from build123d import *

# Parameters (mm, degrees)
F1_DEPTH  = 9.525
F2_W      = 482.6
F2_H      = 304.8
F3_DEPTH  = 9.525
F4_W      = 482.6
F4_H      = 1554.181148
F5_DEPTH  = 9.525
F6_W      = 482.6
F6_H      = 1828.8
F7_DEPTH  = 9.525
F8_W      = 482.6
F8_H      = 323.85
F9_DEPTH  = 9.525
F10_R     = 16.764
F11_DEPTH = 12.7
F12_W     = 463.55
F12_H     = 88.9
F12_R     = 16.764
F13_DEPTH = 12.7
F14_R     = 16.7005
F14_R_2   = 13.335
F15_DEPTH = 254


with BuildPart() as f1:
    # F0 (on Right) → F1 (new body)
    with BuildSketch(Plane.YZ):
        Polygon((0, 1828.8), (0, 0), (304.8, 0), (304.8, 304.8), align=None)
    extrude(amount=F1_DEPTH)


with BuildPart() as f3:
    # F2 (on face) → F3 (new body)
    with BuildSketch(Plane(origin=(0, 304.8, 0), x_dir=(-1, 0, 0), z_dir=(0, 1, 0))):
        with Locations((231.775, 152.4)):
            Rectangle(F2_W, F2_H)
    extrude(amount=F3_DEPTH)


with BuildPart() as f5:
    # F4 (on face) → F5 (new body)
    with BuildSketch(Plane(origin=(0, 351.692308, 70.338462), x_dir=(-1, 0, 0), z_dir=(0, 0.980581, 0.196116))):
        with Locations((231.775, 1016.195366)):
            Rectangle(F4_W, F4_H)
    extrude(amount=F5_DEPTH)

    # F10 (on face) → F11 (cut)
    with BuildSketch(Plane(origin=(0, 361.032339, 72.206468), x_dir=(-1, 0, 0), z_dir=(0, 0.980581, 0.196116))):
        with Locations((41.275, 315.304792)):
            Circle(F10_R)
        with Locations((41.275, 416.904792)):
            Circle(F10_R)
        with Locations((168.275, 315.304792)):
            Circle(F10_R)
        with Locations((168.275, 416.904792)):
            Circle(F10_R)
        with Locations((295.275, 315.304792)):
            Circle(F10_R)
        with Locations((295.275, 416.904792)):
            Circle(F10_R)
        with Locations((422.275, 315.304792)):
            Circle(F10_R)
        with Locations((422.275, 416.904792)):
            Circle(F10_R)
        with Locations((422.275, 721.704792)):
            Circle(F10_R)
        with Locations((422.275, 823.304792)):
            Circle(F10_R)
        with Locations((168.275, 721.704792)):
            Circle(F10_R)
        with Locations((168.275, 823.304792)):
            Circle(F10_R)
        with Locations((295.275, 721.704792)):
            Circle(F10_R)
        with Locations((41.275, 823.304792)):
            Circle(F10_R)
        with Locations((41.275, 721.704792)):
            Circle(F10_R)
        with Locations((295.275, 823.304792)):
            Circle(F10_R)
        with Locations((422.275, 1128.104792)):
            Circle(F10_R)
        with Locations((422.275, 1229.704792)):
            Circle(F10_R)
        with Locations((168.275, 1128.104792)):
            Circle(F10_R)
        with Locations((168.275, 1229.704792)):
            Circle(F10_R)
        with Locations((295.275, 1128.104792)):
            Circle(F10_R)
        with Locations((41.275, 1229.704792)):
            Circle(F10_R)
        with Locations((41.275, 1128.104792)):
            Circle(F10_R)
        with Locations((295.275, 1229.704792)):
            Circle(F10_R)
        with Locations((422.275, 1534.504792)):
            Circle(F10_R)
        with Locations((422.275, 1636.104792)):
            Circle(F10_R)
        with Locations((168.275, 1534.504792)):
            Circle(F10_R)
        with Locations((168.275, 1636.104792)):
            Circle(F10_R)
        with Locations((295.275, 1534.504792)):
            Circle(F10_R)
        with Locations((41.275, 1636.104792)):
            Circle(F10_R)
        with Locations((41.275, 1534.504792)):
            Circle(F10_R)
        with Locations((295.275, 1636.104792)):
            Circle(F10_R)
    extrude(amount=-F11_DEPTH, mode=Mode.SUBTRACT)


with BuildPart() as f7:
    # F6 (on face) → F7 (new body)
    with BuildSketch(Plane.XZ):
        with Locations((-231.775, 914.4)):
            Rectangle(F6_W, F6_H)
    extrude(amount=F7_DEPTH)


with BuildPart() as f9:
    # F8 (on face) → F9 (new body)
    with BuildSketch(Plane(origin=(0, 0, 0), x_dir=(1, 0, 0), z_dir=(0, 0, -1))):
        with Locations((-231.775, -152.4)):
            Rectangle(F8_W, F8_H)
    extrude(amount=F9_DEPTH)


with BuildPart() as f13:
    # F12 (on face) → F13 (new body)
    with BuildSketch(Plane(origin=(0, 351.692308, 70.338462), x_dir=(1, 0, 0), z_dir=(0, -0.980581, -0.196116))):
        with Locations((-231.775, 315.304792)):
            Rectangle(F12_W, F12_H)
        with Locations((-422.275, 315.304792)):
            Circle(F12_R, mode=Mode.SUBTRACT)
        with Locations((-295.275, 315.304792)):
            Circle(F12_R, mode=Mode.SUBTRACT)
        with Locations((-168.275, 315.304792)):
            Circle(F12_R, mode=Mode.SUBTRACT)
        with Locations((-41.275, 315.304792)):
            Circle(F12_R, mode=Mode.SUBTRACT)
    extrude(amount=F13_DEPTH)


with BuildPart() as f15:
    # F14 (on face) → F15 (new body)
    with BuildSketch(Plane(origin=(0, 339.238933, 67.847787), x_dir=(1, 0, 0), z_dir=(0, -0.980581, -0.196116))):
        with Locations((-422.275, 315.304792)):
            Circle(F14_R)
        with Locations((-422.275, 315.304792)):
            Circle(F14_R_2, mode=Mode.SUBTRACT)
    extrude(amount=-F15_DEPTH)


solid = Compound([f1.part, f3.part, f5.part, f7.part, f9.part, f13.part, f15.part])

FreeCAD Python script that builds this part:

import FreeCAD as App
import Part
import Sketcher

V = App.Vector
Q = App.Units.Quantity

doc = App.newDocument("Part")
body = doc.addObject("PartDesign::Body", "Body")

# Sketch on YZ plane
sketch1 = doc.addObject("Sketcher::SketchObject", "Sketch")
body.addObject(sketch1)
sketch1.AttachmentSupport = (doc.YZ_Plane, [""])
sketch1.MapMode = "FlatFace"
sketch1.addGeometry([
    Part.LineSegment(V(0, 1829, 0), V(0, 0, 0)),
    Part.LineSegment(V(0, 0, 0), V(305, 0, 0)),
    Part.LineSegment(V(305, 0, 0), V(305, 305, 0)),
    Part.LineSegment(V(305, 305, 0), V(0, 1829, 0)),
], False)
sketch1.addConstraint([
    Sketcher.Constraint("Coincident", 0, 2, 1, 1),
    Sketcher.Constraint("Coincident", 1, 2, 2, 1),
    Sketcher.Constraint("Coincident", 2, 2, 3, 1),
    Sketcher.Constraint("Coincident", 3, 2, 0, 1),
    Sketcher.Constraint("Vertical", 0),
    Sketcher.Constraint("Horizontal", 1),
    Sketcher.Constraint("Vertical", 2),
    Sketcher.Constraint("Coincident", 0, 2, -1, 1),
    Sketcher.Constraint("Equal", 1, 2),
    Sketcher.Constraint("DistanceX", 1, 1, 1, 2, Q("12 in")),
    Sketcher.Constraint("DistanceY", 0, 2, 0, 1, Q("72 in")),
])
pad1 = doc.addObject("PartDesign::Pad", "Pad")
body.addObject(pad1)
pad1.Profile = sketch1
pad1.Length = Q("0.375 in")
body2 = doc.addObject("PartDesign::Body", "Body001")

# Sketch on XZ plane
sketch2 = doc.addObject("Sketcher::SketchObject", "Sketch001")
body2.addObject(sketch2)
sketch2.AttachmentSupport = (doc.getObject("XZ_Plane001"), [""])
sketch2.MapMode = "FlatFace"
sketch2.AttachmentOffset = App.Placement(V(0, 0, -12 * 25.4), App.Rotation())
sketch2.addGeometry([
    Part.LineSegment(V(10, 305, 0), V(10, 0, 0)),
    Part.LineSegment(V(10, 0, 0), V(-473, 0, 0)),
    Part.LineSegment(V(-473, 0, 0), V(-473, 305, 0)),
    Part.LineSegment(V(-473, 305, 0), V(10, 305, 0)),
], False)
sketch2.addConstraint([
    Sketcher.Constraint("Coincident", 0, 2, 1, 1),
    Sketcher.Constraint("Coincident", 1, 2, 2, 1),
    Sketcher.Constraint("Coincident", 2, 2, 3, 1),
    Sketcher.Constraint("Coincident", 3, 2, 0, 1),
    Sketcher.Constraint("Vertical", 0),
    Sketcher.Constraint("Horizontal", 1),
    Sketcher.Constraint("Vertical", 2),
    Sketcher.Constraint("Horizontal", 3),
    Sketcher.Constraint("PointOnObject", 0, 2, -1),
    Sketcher.Constraint("DistanceX", 1, 2, 1, 1, Q("19 in")),
    Sketcher.Constraint("DistanceY", 0, 2, 0, 1, Q("12 in")),
    Sketcher.Constraint("DistanceX", -1, 1, 0, 2, Q("0.375 in")),
])
pad2 = doc.addObject("PartDesign::Pad", "Pad001")
body2.addObject(pad2)
pad2.Profile = sketch2
pad2.Length = Q("0.375 in")
pad2.Reversed = True
body3 = doc.addObject("PartDesign::Body", "Body002")

# Sketch on an angled plane
sketch3 = doc.addObject("Sketcher::SketchObject", "Sketch002")
body3.addObject(sketch3)
sketch3.Placement = App.Placement(V(0, 351.692308, 70.338462), App.Rotation(V(-1, 0, 0), V(0, -0.196115943, 0.980580714), V(0, 0.980580714, 0.196115943), "ZXY"))
sketch3.addGeometry([
    Part.LineSegment(V(-10, 1793, 0), V(-10, 239, 0)),
    Part.LineSegment(V(-10, 239, 0), V(473, 239, 0)),
    Part.LineSegment(V(473, 239, 0), V(473, 1793, 0)),
    Part.LineSegment(V(473, 1793, 0), V(-10, 1793, 0)),
], False)
sketch3.addConstraint([
    Sketcher.Constraint("Coincident", 0, 2, 1, 1),
    Sketcher.Constraint("Coincident", 1, 2, 2, 1),
    Sketcher.Constraint("Coincident", 2, 2, 3, 1),
    Sketcher.Constraint("Coincident", 3, 2, 0, 1),
    Sketcher.Constraint("Vertical", 0),
    Sketcher.Constraint("Horizontal", 1),
    Sketcher.Constraint("Vertical", 2),
    Sketcher.Constraint("Horizontal", 3),
    Sketcher.Constraint("DistanceX", 1, 1, 1, 2, Q("19 in")),
    Sketcher.Constraint("DistanceX", 0, 2, -1, 1, Q("0.375 in")),
    Sketcher.Constraint("DistanceY", 0, 2, 0, 1, 1554.181148),
    Sketcher.Constraint("DistanceY", -1, 1, 0, 2, 239.104792),
])
pad3 = doc.addObject("PartDesign::Pad", "Pad002")
body3.addObject(pad3)
pad3.Profile = sketch3
pad3.Length = Q("0.375 in")

# Sketch on an angled plane
sketch4 = doc.addObject("Sketcher::SketchObject", "Sketch003")
body3.addObject(sketch4)
sketch4.Placement = App.Placement(V(0, 361.032339, 72.206468), App.Rotation(V(-1, 0, 0), V(0, -0.196115943, 0.980580714), V(0, 0.980580714, 0.196115943), "ZXY"))
sketch4.addGeometry([
    Part.Circle(V(41, 315, 0), V(0, 0, 1), 17),  # 0
    Part.Circle(V(41, 417, 0), V(0, 0, 1), 17),  # 1
    Part.Circle(V(168, 315, 0), V(0, 0, 1), 17),  # 2
    Part.Circle(V(168, 417, 0), V(0, 0, 1), 17),  # 3
    Part.Circle(V(295, 315, 0), V(0, 0, 1), 17),  # 4
    Part.Circle(V(295, 417, 0), V(0, 0, 1), 17),  # 5
    Part.Circle(V(422, 315, 0), V(0, 0, 1), 17),  # 6
    Part.Circle(V(422, 417, 0), V(0, 0, 1), 17),  # 7
    Part.Circle(V(422, 722, 0), V(0, 0, 1), 17),  # 8
    Part.Circle(V(422, 823, 0), V(0, 0, 1), 17),  # 9
    Part.Circle(V(168, 722, 0), V(0, 0, 1), 17),  # 10
    Part.Circle(V(168, 823, 0), V(0, 0, 1), 17),  # 11
    Part.Circle(V(295, 722, 0), V(0, 0, 1), 17),  # 12
    Part.Circle(V(41, 823, 0), V(0, 0, 1), 17),  # 13
    Part.Circle(V(41, 722, 0), V(0, 0, 1), 17),  # 14
    Part.Circle(V(295, 823, 0), V(0, 0, 1), 17),  # 15
    Part.Circle(V(422, 1128, 0), V(0, 0, 1), 17),  # 16
    Part.Circle(V(422, 1230, 0), V(0, 0, 1), 17),  # 17
    Part.Circle(V(168, 1128, 0), V(0, 0, 1), 17),  # 18
    Part.Circle(V(168, 1230, 0), V(0, 0, 1), 17),  # 19
    Part.Circle(V(295, 1128, 0), V(0, 0, 1), 17),  # 20
    Part.Circle(V(41, 1230, 0), V(0, 0, 1), 17),  # 21
    Part.Circle(V(41, 1128, 0), V(0, 0, 1), 17),  # 22
    Part.Circle(V(295, 1230, 0), V(0, 0, 1), 17),  # 23
    Part.Circle(V(422, 1535, 0), V(0, 0, 1), 17),  # 24
    Part.Circle(V(422, 1636, 0), V(0, 0, 1), 17),  # 25
    Part.Circle(V(168, 1535, 0), V(0, 0, 1), 17),  # 26
    Part.Circle(V(168, 1636, 0), V(0, 0, 1), 17),  # 27
    Part.Circle(V(295, 1535, 0), V(0, 0, 1), 17),  # 28
    Part.Circle(V(41, 1636, 0), V(0, 0, 1), 17),  # 29
    Part.Circle(V(41, 1535, 0), V(0, 0, 1), 17),  # 30
    Part.Circle(V(295, 1636, 0), V(0, 0, 1), 17),  # 31
], False)
sketch4.addConstraint([
    Sketcher.Constraint("Equal", 0, 1),
    Sketcher.Constraint("Equal", 1, 2),
    Sketcher.Constraint("Equal", 2, 3),
    Sketcher.Constraint("Equal", 3, 4),
    Sketcher.Constraint("Equal", 4, 5),
    Sketcher.Constraint("Equal", 5, 6),
    Sketcher.Constraint("Equal", 6, 7),
    Sketcher.Constraint("Equal", 7, 8),
    Sketcher.Constraint("Equal", 8, 9),
    Sketcher.Constraint("Equal", 9, 10),
    Sketcher.Constraint("Equal", 10, 11),
    Sketcher.Constraint("Equal", 11, 12),
    Sketcher.Constraint("Equal", 12, 13),
    Sketcher.Constraint("Equal", 13, 14),
    Sketcher.Constraint("Equal", 14, 15),
    Sketcher.Constraint("Equal", 15, 16),
    Sketcher.Constraint("Equal", 16, 17),
    Sketcher.Constraint("Equal", 17, 18),
    Sketcher.Constraint("Equal", 18, 19),
    Sketcher.Constraint("Equal", 19, 20),
    Sketcher.Constraint("Equal", 20, 21),
    Sketcher.Constraint("Equal", 21, 22),
    Sketcher.Constraint("Equal", 22, 23),
    Sketcher.Constraint("Equal", 23, 24),
    Sketcher.Constraint("Equal", 24, 25),
    Sketcher.Constraint("Equal", 25, 26),
    Sketcher.Constraint("Equal", 26, 27),
    Sketcher.Constraint("Equal", 27, 28),
    Sketcher.Constraint("Equal", 28, 29),
    Sketcher.Constraint("Equal", 29, 30),
    Sketcher.Constraint("Equal", 30, 31),
    Sketcher.Constraint("Horizontal", 0, 3, 2, 3),
    Sketcher.Constraint("Horizontal", 1, 3, 3, 3),
    Sketcher.Constraint("Horizontal", 2, 3, 4, 3),
    Sketcher.Constraint("Horizontal", 3, 3, 5, 3),
    Sketcher.Constraint("Horizontal", 4, 3, 6, 3),
    Sketcher.Constraint("Horizontal", 5, 3, 7, 3),
    Sketcher.Constraint("Horizontal", 8, 3, 10, 3),
    Sketcher.Constraint("Horizontal", 9, 3, 11, 3),
    Sketcher.Constraint("Horizontal", 10, 3, 12, 3),
    Sketcher.Constraint("Horizontal", 11, 3, 13, 3),
    Sketcher.Constraint("Horizontal", 12, 3, 14, 3),
    Sketcher.Constraint("Horizontal", 13, 3, 15, 3),
    Sketcher.Constraint("Horizontal", 16, 3, 18, 3),
    Sketcher.Constraint("Horizontal", 17, 3, 19, 3),
    Sketcher.Constraint("Horizontal", 18, 3, 20, 3),
    Sketcher.Constraint("Horizontal", 19, 3, 21, 3),
    Sketcher.Constraint("Horizontal", 20, 3, 22, 3),
    Sketcher.Constraint("Horizontal", 21, 3, 23, 3),
    Sketcher.Constraint("Horizontal", 24, 3, 26, 3),
    Sketcher.Constraint("Horizontal", 25, 3, 27, 3),
    Sketcher.Constraint("Horizontal", 26, 3, 28, 3),
    Sketcher.Constraint("Horizontal", 27, 3, 29, 3),
    Sketcher.Constraint("Horizontal", 28, 3, 30, 3),
    Sketcher.Constraint("Horizontal", 29, 3, 31, 3),
    Sketcher.Constraint("Vertical", 0, 3, 1, 3),
    Sketcher.Constraint("Vertical", 2, 3, 3, 3),
    Sketcher.Constraint("Vertical", 4, 3, 5, 3),
    Sketcher.Constraint("Vertical", 6, 3, 7, 3),
    Sketcher.Constraint("Vertical", 7, 3, 8, 3),
    Sketcher.Constraint("Vertical", 8, 3, 9, 3),
    Sketcher.Constraint("Vertical", 3, 3, 10, 3),
    Sketcher.Constraint("Vertical", 10, 3, 11, 3),
    Sketcher.Constraint("Vertical", 5, 3, 12, 3),
    Sketcher.Constraint("Vertical", 1, 3, 13, 3),
    Sketcher.Constraint("Vertical", 13, 3, 14, 3),
    Sketcher.Constraint("Vertical", 12, 3, 15, 3),
    Sketcher.Constraint("Vertical", 9, 3, 16, 3),
    Sketcher.Constraint("Vertical", 16, 3, 17, 3),
    Sketcher.Constraint("Vertical", 11, 3, 18, 3),
    Sketcher.Constraint("Vertical", 18, 3, 19, 3),
    Sketcher.Constraint("Vertical", 15, 3, 20, 3),
    Sketcher.Constraint("Vertical", 14, 3, 21, 3),
    Sketcher.Constraint("Vertical", 21, 3, 22, 3),
    Sketcher.Constraint("Vertical", 20, 3, 23, 3),
    Sketcher.Constraint("Vertical", 17, 3, 24, 3),
    Sketcher.Constraint("Vertical", 24, 3, 25, 3),
    Sketcher.Constraint("Vertical", 19, 3, 26, 3),
    Sketcher.Constraint("Vertical", 26, 3, 27, 3),
    Sketcher.Constraint("Vertical", 23, 3, 28, 3),
    Sketcher.Constraint("Vertical", 22, 3, 29, 3),
    Sketcher.Constraint("Vertical", 29, 3, 30, 3),
    Sketcher.Constraint("Vertical", 28, 3, 31, 3),
    Sketcher.Constraint("Diameter", 0, Q("1.32 in")),
    Sketcher.Constraint("DistanceY", 0, 3, 1, 3, Q("4 in")),
    Sketcher.Constraint("DistanceX", 0, 3, 2, 3, Q("5 in")),
    Sketcher.Constraint("DistanceX", 2, 3, 4, 3, Q("5 in")),
    Sketcher.Constraint("DistanceX", 4, 3, 6, 3, Q("5 in")),
    Sketcher.Constraint("DistanceY", 7, 3, 8, 3, Q("12 in")),
    Sketcher.Constraint("DistanceY", 8, 3, 9, 3, Q("4 in")),
    Sketcher.Constraint("DistanceY", 9, 3, 16, 3, Q("12 in")),
    Sketcher.Constraint("DistanceY", 16, 3, 17, 3, Q("4 in")),
    Sketcher.Constraint("DistanceY", 17, 3, 24, 3, Q("12 in")),
    Sketcher.Constraint("DistanceY", 24, 3, 25, 3, Q("4 in")),
    Sketcher.Constraint("DistanceX", -1, 1, 0, 3, Q("1.625 in")),
    Sketcher.Constraint("DistanceY", -1, 1, 0, 3, 315.304792),
])
pocket1 = doc.addObject("PartDesign::Pocket", "Pocket")
body3.addObject(pocket1)
pocket1.Profile = sketch4
pocket1.Length = Q("0.5 in")
body4 = doc.addObject("PartDesign::Body", "Body003")

# Sketch on XZ plane
sketch5 = doc.addObject("Sketcher::SketchObject", "Sketch004")
body4.addObject(sketch5)
sketch5.AttachmentSupport = (doc.getObject("XZ_Plane003"), [""])
sketch5.MapMode = "FlatFace"
sketch5.addGeometry([
    Part.LineSegment(V(-473, 1829, 0), V(-473, 0, 0)),
    Part.LineSegment(V(-473, 0, 0), V(10, 0, 0)),
    Part.LineSegment(V(10, 0, 0), V(10, 1829, 0)),
    Part.LineSegment(V(10, 1829, 0), V(-473, 1829, 0)),
], False)
sketch5.addConstraint([
    Sketcher.Constraint("Coincident", 0, 2, 1, 1),
    Sketcher.Constraint("Coincident", 1, 2, 2, 1),
    Sketcher.Constraint("Coincident", 2, 2, 3, 1),
    Sketcher.Constraint("Coincident", 3, 2, 0, 1),
    Sketcher.Constraint("Vertical", 0),
    Sketcher.Constraint("Horizontal", 1),
    Sketcher.Constraint("Vertical", 2),
    Sketcher.Constraint("Horizontal", 3),
    Sketcher.Constraint("PointOnObject", 0, 2, -1),
    Sketcher.Constraint("DistanceX", 1, 1, 1, 2, Q("19 in")),
    Sketcher.Constraint("DistanceY", 0, 2, 0, 1, Q("72 in")),
    Sketcher.Constraint("DistanceX", 0, 2, -1, 1, Q("18.625 in")),
])
pad4 = doc.addObject("PartDesign::Pad", "Pad003")
body4.addObject(pad4)
pad4.Profile = sketch5
pad4.Length = Q("0.375 in")
body5 = doc.addObject("PartDesign::Body", "Body004")

# Sketch on XY plane
sketch6 = doc.addObject("Sketcher::SketchObject", "Sketch005")
body5.addObject(sketch6)
sketch6.AttachmentSupport = (doc.getObject("XY_Plane004"), [""])
sketch6.MapMode = "FlatFace"
sketch6.addGeometry([
    Part.LineSegment(V(-473, -10, 0), V(-473, 314, 0)),
    Part.LineSegment(V(-473, 314, 0), V(10, 314, 0)),
    Part.LineSegment(V(10, 314, 0), V(10, -10, 0)),
    Part.LineSegment(V(10, -10, 0), V(-473, -10, 0)),
], False)
sketch6.addConstraint([
    Sketcher.Constraint("Coincident", 0, 2, 1, 1),
    Sketcher.Constraint("Coincident", 1, 2, 2, 1),
    Sketcher.Constraint("Coincident", 2, 2, 3, 1),
    Sketcher.Constraint("Coincident", 3, 2, 0, 1),
    Sketcher.Constraint("Vertical", 0),
    Sketcher.Constraint("Horizontal", 1),
    Sketcher.Constraint("Vertical", 2),
    Sketcher.Constraint("Horizontal", 3),
    Sketcher.Constraint("DistanceX", 1, 1, 1, 2, Q("19 in")),
    Sketcher.Constraint("DistanceY", 0, 1, 0, 2, Q("12.75 in")),
    Sketcher.Constraint("DistanceX", 0, 2, -1, 1, Q("18.625 in")),
    Sketcher.Constraint("DistanceY", -1, 1, 0, 2, Q("12.375 in")),
])
pad5 = doc.addObject("PartDesign::Pad", "Pad004")
body5.addObject(pad5)
pad5.Profile = sketch6
pad5.Length = Q("0.375 in")
pad5.Reversed = True
body6 = doc.addObject("PartDesign::Body", "Body005")

# Sketch on an angled plane
sketch7 = doc.addObject("Sketcher::SketchObject", "Sketch006")
body6.addObject(sketch7)
sketch7.Placement = App.Placement(V(0, 351.692308, 70.338462), App.Rotation(V(1, 0, 0), V(0, -0.196115943, 0.980580714), V(0, -0.980580714, -0.196115943), "ZXY"))
sketch7.addGeometry([
    Part.LineSegment(V(-464, 360, 0), V(-464, 271, 0)),  # 0
    Part.LineSegment(V(-464, 271, 0), V(0, 271, 0)),  # 1
    Part.LineSegment(V(0, 271, 0), V(0, 360, 0)),  # 2
    Part.LineSegment(V(0, 360, 0), V(-464, 360, 0)),  # 3
    Part.Circle(V(-422, 315, 0), V(0, 0, 1), 17),  # 4
    Part.Circle(V(-295, 315, 0), V(0, 0, 1), 17),  # 5
    Part.Circle(V(-168, 315, 0), V(0, 0, 1), 17),  # 6
    Part.Circle(V(-41, 315, 0), V(0, 0, 1), 17),  # 7
], False)
sketch7.addConstraint([
    Sketcher.Constraint("Coincident", 0, 2, 1, 1),
    Sketcher.Constraint("Coincident", 1, 2, 2, 1),
    Sketcher.Constraint("Coincident", 2, 2, 3, 1),
    Sketcher.Constraint("Coincident", 3, 2, 0, 1),
    Sketcher.Constraint("Vertical", 0),
    Sketcher.Constraint("Horizontal", 1),
    Sketcher.Constraint("Vertical", 2),
    Sketcher.Constraint("Horizontal", 3),
    Sketcher.Constraint("Equal", 4, 5),
    Sketcher.Constraint("Equal", 5, 6),
    Sketcher.Constraint("Equal", 6, 7),
    Sketcher.Constraint("PointOnObject", 1, 2, -2),
    Sketcher.Constraint("Horizontal", 4, 3, 5, 3),
    Sketcher.Constraint("Horizontal", 5, 3, 6, 3),
    Sketcher.Constraint("Horizontal", 6, 3, 7, 3),
    Sketcher.Constraint("Diameter", 4, Q("1.32 in")),
    Sketcher.Constraint("DistanceY", 0, 2, 0, 1, Q("3.5 in")),
    Sketcher.Constraint("DistanceX", 4, 3, 5, 3, Q("5 in")),
    Sketcher.Constraint("DistanceX", 5, 3, 6, 3, Q("5 in")),
    Sketcher.Constraint("DistanceX", 6, 3, 7, 3, Q("5 in")),
    Sketcher.Constraint("DistanceX", 1, 1, 1, 2, Q("18.25 in")),
    Sketcher.Constraint("DistanceY", 0, 2, 4, 3, Q("1.75 in")),
    Sketcher.Constraint("DistanceX", 4, 3, -1, 1, Q("16.625 in")),
    Sketcher.Constraint("DistanceY", -1, 1, 4, 3, 315.304792),
])
pad6 = doc.addObject("PartDesign::Pad", "Pad005")
body6.addObject(pad6)
pad6.Profile = sketch7
pad6.Length = Q("0.5 in")
body7 = doc.addObject("PartDesign::Body", "Body006")

# Sketch on an angled plane
sketch8 = doc.addObject("Sketcher::SketchObject", "Sketch007")
body7.addObject(sketch8)
sketch8.Placement = App.Placement(V(0, 339.238933, 67.847787), App.Rotation(V(1, 0, 0), V(0, -0.196115943, 0.980580714), V(0, -0.980580714, -0.196115943), "ZXY"))
sketch8.addGeometry([
    Part.Circle(V(-422, 315, 0), V(0, 0, 1), 17),
    Part.Circle(V(-422, 315, 0), V(0, 0, 1), 13),
], False)
sketch8.addConstraint([
    Sketcher.Constraint("Coincident", 1, 3, 0, 3),
    Sketcher.Constraint("Diameter", 1, Q("1.05 in")),
    Sketcher.Constraint("Diameter", 0, Q("1.315 in")),
    Sketcher.Constraint("DistanceX", 0, 3, -1, 1, Q("16.625 in")),
    Sketcher.Constraint("DistanceY", -1, 1, 0, 3, 315.304792),
])
pad7 = doc.addObject("PartDesign::Pad", "Pad006")
body7.addObject(pad7)
pad7.Profile = sketch8
pad7.Length = Q("10 in")
pad7.Reversed = True

doc.recompute()
